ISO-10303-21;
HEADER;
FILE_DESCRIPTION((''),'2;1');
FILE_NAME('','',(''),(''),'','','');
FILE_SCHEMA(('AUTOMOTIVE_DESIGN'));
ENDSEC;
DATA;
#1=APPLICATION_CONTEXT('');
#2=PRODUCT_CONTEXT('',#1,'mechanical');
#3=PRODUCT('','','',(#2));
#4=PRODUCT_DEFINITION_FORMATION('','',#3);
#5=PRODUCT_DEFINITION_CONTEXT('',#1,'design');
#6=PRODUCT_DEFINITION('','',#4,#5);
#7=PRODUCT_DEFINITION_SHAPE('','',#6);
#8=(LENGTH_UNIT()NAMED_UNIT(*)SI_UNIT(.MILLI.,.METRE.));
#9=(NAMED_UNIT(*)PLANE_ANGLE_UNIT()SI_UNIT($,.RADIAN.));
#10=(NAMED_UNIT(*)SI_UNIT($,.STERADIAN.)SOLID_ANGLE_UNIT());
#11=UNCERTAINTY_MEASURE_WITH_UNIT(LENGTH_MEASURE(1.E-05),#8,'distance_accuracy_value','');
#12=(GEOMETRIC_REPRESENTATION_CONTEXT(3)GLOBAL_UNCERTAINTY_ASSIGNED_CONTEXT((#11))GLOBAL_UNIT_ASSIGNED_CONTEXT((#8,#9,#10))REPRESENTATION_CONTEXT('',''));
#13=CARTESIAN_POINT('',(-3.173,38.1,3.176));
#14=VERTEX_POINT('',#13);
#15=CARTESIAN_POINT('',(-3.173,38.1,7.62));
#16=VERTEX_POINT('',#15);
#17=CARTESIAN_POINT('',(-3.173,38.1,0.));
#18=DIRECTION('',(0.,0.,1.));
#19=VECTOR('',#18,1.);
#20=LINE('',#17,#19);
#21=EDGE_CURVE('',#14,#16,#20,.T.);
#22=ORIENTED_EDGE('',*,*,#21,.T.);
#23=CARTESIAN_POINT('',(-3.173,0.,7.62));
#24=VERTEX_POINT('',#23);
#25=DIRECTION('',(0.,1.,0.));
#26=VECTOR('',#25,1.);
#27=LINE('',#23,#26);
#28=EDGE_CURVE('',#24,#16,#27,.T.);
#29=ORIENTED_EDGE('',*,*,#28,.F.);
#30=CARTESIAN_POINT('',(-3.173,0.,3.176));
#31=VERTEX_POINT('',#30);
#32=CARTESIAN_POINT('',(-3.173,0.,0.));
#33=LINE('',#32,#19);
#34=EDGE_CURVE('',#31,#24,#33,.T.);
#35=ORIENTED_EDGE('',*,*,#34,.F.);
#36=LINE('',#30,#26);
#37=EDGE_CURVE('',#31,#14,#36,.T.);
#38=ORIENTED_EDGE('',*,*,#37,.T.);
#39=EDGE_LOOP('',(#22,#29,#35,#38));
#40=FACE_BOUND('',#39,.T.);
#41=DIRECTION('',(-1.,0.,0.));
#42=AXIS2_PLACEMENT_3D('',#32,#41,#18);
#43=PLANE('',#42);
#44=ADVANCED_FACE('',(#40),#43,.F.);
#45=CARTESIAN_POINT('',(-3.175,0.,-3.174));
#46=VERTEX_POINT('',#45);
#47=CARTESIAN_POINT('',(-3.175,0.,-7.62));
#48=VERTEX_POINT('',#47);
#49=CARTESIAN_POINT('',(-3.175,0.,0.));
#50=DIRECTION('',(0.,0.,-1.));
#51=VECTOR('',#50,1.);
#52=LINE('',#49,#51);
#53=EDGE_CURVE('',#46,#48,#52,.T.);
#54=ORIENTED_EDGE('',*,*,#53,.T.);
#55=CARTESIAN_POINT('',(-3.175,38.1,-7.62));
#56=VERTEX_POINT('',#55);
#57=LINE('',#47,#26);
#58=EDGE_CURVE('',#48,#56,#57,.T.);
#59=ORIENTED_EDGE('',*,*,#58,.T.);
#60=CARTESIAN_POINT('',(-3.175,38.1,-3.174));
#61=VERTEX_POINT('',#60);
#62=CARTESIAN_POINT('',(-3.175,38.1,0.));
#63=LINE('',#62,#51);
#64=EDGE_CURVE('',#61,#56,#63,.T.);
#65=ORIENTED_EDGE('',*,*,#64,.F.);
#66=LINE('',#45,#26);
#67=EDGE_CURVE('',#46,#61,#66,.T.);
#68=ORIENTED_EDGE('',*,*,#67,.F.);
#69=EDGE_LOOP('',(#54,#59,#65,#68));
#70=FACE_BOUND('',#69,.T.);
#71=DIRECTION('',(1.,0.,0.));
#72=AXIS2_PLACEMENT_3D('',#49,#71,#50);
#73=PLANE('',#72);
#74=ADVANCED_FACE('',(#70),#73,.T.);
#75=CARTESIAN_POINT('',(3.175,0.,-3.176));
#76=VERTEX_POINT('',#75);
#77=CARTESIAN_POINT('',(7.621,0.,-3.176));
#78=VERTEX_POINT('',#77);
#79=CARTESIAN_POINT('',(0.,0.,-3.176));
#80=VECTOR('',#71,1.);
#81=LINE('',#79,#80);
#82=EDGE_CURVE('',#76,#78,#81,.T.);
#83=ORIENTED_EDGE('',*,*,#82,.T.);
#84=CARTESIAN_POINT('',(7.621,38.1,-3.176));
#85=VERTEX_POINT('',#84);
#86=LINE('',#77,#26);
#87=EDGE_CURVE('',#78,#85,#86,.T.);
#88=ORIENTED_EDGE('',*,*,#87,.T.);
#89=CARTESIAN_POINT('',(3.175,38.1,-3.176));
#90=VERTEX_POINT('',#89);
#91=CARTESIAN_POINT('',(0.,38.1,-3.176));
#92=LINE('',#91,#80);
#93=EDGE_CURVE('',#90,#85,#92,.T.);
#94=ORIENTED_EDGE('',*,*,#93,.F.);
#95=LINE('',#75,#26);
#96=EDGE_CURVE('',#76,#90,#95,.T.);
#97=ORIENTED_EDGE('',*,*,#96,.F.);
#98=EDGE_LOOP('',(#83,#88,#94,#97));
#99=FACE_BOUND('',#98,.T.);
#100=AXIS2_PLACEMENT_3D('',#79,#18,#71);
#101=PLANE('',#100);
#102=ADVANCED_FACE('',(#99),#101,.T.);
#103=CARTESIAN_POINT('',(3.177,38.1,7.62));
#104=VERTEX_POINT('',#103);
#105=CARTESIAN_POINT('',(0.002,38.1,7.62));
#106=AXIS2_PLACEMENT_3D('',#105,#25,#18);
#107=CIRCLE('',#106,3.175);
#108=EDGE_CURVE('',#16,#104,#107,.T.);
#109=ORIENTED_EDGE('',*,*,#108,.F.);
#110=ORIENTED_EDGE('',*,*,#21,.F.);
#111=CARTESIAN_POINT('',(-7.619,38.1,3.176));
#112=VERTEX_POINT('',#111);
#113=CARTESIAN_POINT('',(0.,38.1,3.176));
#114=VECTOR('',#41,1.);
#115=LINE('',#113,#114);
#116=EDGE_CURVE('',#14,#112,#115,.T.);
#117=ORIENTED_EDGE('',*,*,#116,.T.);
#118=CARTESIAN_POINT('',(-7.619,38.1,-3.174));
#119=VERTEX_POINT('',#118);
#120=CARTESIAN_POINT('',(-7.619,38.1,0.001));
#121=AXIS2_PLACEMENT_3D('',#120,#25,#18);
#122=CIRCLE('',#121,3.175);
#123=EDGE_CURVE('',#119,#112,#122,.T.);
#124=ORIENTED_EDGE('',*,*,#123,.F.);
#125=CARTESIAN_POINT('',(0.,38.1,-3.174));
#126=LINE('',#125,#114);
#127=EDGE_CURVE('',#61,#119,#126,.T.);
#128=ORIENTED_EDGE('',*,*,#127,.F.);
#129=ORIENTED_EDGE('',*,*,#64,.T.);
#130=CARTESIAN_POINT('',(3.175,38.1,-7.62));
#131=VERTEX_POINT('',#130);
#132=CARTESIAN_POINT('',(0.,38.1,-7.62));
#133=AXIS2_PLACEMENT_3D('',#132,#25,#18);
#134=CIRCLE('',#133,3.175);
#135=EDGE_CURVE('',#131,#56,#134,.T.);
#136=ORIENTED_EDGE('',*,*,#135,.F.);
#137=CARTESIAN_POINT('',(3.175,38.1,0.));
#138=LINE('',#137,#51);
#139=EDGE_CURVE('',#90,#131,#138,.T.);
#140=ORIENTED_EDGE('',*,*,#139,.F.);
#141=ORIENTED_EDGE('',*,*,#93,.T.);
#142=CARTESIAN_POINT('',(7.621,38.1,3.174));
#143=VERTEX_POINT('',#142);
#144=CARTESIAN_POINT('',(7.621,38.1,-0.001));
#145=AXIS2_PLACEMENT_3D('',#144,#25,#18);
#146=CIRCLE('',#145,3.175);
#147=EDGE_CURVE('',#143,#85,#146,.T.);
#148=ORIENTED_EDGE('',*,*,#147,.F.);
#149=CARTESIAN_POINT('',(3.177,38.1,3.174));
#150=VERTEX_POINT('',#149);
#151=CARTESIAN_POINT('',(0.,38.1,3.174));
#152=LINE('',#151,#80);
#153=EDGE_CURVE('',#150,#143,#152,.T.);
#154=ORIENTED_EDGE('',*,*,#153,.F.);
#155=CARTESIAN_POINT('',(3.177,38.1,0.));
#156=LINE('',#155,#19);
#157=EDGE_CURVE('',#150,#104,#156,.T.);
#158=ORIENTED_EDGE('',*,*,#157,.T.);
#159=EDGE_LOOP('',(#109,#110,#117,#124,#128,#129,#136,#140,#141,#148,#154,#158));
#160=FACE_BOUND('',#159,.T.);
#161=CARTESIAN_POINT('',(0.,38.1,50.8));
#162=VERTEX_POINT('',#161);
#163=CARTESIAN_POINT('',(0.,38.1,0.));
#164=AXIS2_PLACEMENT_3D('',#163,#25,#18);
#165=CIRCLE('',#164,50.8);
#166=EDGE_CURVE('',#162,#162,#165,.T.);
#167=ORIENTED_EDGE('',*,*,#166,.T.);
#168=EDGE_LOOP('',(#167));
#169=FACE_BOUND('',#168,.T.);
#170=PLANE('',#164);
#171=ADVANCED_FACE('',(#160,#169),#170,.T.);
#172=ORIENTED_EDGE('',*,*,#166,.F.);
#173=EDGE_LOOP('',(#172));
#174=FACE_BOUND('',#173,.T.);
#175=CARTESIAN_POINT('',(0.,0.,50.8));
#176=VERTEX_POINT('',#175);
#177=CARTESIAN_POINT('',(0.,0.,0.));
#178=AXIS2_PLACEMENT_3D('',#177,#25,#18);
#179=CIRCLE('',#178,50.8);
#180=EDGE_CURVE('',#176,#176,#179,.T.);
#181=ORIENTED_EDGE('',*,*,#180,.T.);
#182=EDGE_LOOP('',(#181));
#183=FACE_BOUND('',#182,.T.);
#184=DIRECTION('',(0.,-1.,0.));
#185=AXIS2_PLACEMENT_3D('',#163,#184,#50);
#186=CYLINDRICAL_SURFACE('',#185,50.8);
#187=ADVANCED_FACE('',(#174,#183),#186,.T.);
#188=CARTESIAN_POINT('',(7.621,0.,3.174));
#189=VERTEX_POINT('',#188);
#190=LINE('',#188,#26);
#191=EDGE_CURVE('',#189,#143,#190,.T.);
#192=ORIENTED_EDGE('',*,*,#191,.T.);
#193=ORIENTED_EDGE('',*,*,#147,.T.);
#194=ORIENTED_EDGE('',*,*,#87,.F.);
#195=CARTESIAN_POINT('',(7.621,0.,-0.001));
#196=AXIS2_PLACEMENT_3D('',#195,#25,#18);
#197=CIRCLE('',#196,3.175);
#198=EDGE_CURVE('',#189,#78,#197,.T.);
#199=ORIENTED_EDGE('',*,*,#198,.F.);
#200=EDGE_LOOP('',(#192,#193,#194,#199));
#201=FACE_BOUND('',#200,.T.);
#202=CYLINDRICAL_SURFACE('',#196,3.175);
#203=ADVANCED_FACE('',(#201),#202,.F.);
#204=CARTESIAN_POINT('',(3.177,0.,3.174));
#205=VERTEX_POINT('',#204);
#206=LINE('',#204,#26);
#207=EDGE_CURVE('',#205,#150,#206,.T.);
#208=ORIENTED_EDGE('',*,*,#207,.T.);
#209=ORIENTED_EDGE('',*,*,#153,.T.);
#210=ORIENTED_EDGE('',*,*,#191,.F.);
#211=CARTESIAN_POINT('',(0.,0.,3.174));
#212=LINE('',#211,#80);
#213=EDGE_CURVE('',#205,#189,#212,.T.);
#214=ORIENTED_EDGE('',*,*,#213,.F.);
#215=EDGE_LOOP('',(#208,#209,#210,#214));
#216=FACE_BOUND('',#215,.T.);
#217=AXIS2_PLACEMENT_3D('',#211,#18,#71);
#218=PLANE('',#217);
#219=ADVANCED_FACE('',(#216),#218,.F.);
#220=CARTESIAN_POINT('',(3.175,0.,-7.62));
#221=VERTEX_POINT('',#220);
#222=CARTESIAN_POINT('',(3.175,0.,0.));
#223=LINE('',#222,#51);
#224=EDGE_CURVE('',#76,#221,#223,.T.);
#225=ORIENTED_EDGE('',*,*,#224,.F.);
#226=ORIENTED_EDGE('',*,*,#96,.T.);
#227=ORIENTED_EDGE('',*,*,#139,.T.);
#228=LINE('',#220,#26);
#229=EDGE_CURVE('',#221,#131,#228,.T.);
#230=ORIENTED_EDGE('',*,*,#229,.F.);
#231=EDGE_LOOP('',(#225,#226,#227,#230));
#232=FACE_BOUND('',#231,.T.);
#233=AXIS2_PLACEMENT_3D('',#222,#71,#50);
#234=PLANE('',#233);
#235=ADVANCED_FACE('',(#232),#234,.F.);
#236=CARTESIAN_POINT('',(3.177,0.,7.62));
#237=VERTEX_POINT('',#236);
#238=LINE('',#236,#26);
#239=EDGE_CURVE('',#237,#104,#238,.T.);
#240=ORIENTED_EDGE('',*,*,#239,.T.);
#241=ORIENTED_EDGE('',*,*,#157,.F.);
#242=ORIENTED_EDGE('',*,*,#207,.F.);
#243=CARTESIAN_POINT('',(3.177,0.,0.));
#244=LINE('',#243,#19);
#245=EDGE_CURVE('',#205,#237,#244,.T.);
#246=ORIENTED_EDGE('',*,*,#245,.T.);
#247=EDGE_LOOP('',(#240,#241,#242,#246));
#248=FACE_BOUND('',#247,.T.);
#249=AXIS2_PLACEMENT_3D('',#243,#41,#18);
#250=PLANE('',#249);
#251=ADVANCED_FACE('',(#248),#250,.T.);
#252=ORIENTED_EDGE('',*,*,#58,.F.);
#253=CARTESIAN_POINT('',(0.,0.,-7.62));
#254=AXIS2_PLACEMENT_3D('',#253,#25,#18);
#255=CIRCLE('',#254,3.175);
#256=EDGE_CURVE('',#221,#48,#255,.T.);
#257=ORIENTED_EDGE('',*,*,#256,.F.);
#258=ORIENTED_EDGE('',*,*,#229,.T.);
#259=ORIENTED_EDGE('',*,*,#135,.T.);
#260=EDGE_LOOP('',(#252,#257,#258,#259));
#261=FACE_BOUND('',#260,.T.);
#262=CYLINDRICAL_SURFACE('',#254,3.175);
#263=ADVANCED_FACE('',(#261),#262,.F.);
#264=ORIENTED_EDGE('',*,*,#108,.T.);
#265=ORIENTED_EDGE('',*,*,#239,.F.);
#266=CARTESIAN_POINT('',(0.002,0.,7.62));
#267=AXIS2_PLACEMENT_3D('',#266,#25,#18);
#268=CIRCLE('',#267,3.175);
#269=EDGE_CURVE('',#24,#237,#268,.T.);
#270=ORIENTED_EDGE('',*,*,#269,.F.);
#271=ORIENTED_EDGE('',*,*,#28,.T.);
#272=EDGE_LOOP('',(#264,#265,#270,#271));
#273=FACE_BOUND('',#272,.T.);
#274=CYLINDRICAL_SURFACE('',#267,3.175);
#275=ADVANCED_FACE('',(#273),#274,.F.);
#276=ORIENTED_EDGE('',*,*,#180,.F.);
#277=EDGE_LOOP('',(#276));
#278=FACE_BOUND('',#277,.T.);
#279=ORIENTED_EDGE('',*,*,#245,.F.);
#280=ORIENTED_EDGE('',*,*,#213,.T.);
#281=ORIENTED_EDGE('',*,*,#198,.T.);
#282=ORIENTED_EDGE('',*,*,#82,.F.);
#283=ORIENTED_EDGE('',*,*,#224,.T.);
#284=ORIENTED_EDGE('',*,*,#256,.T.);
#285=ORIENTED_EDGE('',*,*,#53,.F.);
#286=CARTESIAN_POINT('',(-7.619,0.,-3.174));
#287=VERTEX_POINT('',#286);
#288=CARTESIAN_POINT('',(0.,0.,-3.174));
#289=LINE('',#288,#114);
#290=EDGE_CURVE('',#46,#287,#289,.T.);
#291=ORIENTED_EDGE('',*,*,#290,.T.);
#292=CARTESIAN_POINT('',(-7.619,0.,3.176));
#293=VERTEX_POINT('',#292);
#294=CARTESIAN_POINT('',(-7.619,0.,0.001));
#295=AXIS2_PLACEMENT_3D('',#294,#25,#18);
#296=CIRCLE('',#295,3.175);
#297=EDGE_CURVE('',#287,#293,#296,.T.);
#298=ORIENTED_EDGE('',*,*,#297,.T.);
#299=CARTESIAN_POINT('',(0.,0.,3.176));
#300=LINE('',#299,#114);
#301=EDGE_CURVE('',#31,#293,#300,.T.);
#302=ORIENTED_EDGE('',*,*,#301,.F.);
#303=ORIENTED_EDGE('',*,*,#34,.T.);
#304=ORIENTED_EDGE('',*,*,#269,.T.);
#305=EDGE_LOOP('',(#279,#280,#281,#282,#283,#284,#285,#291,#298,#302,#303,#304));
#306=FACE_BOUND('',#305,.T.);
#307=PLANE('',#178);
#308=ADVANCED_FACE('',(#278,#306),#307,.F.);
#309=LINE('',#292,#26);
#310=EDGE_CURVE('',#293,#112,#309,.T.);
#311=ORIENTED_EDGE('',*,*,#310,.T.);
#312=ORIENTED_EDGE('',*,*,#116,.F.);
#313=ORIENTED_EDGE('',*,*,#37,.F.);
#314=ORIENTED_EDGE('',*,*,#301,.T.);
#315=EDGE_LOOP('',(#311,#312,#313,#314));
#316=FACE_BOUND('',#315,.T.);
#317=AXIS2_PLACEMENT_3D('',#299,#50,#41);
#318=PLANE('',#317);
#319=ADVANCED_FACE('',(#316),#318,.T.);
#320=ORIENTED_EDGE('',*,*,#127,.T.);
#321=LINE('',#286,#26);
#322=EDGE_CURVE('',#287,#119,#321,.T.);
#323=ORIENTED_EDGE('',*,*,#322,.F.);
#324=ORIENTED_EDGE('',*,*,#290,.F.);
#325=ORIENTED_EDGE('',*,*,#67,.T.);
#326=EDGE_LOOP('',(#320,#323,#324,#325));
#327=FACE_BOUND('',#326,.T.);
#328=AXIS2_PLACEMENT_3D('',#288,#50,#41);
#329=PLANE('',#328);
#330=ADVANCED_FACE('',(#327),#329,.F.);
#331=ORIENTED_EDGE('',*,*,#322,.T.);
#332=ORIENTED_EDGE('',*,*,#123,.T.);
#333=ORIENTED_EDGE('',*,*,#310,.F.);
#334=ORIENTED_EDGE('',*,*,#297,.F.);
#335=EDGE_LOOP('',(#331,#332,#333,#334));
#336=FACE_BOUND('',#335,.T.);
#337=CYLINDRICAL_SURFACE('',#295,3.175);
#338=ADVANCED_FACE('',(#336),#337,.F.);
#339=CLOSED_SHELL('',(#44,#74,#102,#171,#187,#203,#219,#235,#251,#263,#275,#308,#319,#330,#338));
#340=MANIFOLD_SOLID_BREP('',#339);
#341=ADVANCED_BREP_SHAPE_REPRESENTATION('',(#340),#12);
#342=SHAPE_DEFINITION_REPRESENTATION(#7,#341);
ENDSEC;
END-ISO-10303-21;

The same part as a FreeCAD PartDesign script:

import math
import FreeCAD as App
import Part
import Sketcher
Q = App.Units.Quantity

doc = App.newDocument("Part")
body = doc.addObject("PartDesign::Body", "Body")

sketch1 = body.newObject("Sketcher::SketchObject", "Sketch")
sketch1.AttachmentSupport = (doc.getObject("XZ_Plane"), [""])
sketch1.MapMode = "FlatFace"
sketch1.addGeometry(Part.Circle(App.Vector(0, 0, 0), App.Vector(0, 0, 1), 50.8), False)
sketch1.addGeometry(Part.Circle(App.Vector(0, 0, 0), App.Vector(0, 0, 1), 3.2), False)
sketch1.addConstraint(Sketcher.Constraint("Coincident", 0, 3, -1, 1))
sketch1.addConstraint(Sketcher.Constraint("Coincident", 1, 3, -1, 1))
sketch1.addConstraint(Sketcher.Constraint("Diameter", 0, Q("4 in")))
sketch1.addConstraint(Sketcher.Constraint("Diameter", 1, Q("0.25 in")))
pad1 = body.newObject("PartDesign::Pad", "Pad")
pad1.Profile = sketch1
pad1.Length = Q("1.5 in")
pad1.Reversed = True

sketch2 = body.newObject("Sketcher::SketchObject", "Sketch001")
sketch2.AttachmentSupport = (doc.getObject("XZ_Plane"), [""])
sketch2.MapMode = "FlatFace"
sketch2.AttachmentOffset = App.Placement(App.Vector(0, 0, -1.5 * 25.4), App.Rotation())
sketch2.addGeometry(Part.LineSegment(App.Vector(-3.2, -7.6, 0), App.Vector(-3.2, -3.2, 0)), False)
sketch2.addGeometry(Part.LineSegment(App.Vector(-3.2, -3.2, 0), App.Vector(-7.6, -3.2, 0)), False)
sketch2.addGeometry(Part.ArcOfCircle(Part.Circle(App.Vector(-7.6, 0, 0), App.Vector(0, 0, 1), 3.2), math.radians(90), math.radians(270)), False)
sketch2.addGeometry(Part.LineSegment(App.Vector(-7.6, 3.2, 0), App.Vector(-3.2, 3.2, 0)), False)
sketch2.addGeometry(Part.LineSegment(App.Vector(-3.2, 3.2, 0), App.Vector(-3.2, 7.6, 0)), False)
sketch2.addGeometry(Part.ArcOfCircle(Part.Circle(App.Vector(0, 7.6, 0), App.Vector(0, 0, 1), 3.2), math.radians(0), math.radians(180)), False)
sketch2.addGeometry(Part.LineSegment(App.Vector(3.2, 7.6, 0), App.Vector(3.2, 3.2, 0)), False)
sketch2.addGeometry(Part.LineSegment(App.Vector(3.2, 3.2, 0), App.Vector(7.6, 3.2, 0)), False)
sketch2.addGeometry(Part.ArcOfCircle(Part.Circle(App.Vector(7.6, 0, 0), App.Vector(0, 0, 1), 3.2), math.radians(-90), math.radians(90)), False)
sketch2.addGeometry(Part.LineSegment(App.Vector(7.6, -3.2, 0), App.Vector(3.2, -3.2, 0)), False)
sketch2.addGeometry(Part.LineSegment(App.Vector(3.2, -3.2, 0), App.Vector(3.2, -7.6, 0)), False)
sketch2.addGeometry(Part.ArcOfCircle(Part.Circle(App.Vector(0, -7.6, 0), App.Vector(0, 0, 1), 3.2), math.radians(-180), math.radians(0)), False)
sketch2.addConstraint(Sketcher.Constraint("Coincident", 0, 2, 1, 1))
sketch2.addConstraint(Sketcher.Constraint("Tangent", 1, 2, 2, 2))
sketch2.addConstraint(Sketcher.Constraint("Tangent", 2, 1, 3, 1))
sketch2.addConstraint(Sketcher.Constraint("Coincident", 3, 2, 4, 1))
sketch2.addConstraint(Sketcher.Constraint("Tangent", 4, 2, 5, 2))
sketch2.addConstraint(Sketcher.Constraint("Tangent", 5, 1, 6, 1))
sketch2.addConstraint(Sketcher.Constraint("Coincident", 6, 2, 7, 1))
sketch2.addConstraint(Sketcher.Constraint("Tangent", 7, 2, 8, 2))
sketch2.addConstraint(Sketcher.Constraint("Tangent", 8, 1, 9, 1))
sketch2.addConstraint(Sketcher.Constraint("Coincident", 9, 2, 10, 1))
sketch2.addConstraint(Sketcher.Constraint("Tangent", 10, 2, 11, 2))
sketch2.addConstraint(Sketcher.Constraint("Tangent", 11, 1, 0, 1))
sketch2.addConstraint(Sketcher.Constraint("Vertical", 0))
sketch2.addConstraint(Sketcher.Constraint("Horizontal", 1))
sketch2.addConstraint(Sketcher.Constraint("Horizontal", 3))
sketch2.addConstraint(Sketcher.Constraint("Vertical", 4))
sketch2.addConstraint(Sketcher.Constraint("Vertical", 6))
sketch2.addConstraint(Sketcher.Constraint("Horizontal", 7))
sketch2.addConstraint(Sketcher.Constraint("Horizontal", 9))
sketch2.addConstraint(Sketcher.Constraint("Vertical", 10))
sketch2.addConstraint(Sketcher.Constraint("Equal", 2, 5))
sketch2.addConstraint(Sketcher.Constraint("Equal", 5, 8))
sketch2.addConstraint(Sketcher.Constraint("Equal", 8, 11))
sketch2.addConstraint(Sketcher.Constraint("PointOnObject", 11, 3, -2))
sketch2.addConstraint(Sketcher.Constraint("Equal", 1, 7))
sketch2.addConstraint(Sketcher.Constraint("Equal", 9, 0))
sketch2.addConstraint(Sketcher.Constraint("Equal", 7, 4))
sketch2.addConstraint(Sketcher.Constraint("Equal", 0, 6))
sketch2.addConstraint(Sketcher.Constraint("Radius", 2, Q("0.125 in")))
sketch2.addConstraint(Sketcher.Constraint("DistanceY", -1, 1, 5, 3, Q("0.3 in")))
sketch2.addConstraint(Sketcher.Constraint("DistanceY", 11, 3, -1, 1, Q("0.3 in")))
sketch2.addConstraint(Sketcher.Constraint("DistanceX", 1, 2, 1, 1, Q("4.444 mm")))
pocket1 = body.newObject("PartDesign::Pocket", "Pocket")
pocket1.Profile = sketch2
pocket1.Type = "ThroughAll"
pocket1.Reversed = True

doc.recompute()
